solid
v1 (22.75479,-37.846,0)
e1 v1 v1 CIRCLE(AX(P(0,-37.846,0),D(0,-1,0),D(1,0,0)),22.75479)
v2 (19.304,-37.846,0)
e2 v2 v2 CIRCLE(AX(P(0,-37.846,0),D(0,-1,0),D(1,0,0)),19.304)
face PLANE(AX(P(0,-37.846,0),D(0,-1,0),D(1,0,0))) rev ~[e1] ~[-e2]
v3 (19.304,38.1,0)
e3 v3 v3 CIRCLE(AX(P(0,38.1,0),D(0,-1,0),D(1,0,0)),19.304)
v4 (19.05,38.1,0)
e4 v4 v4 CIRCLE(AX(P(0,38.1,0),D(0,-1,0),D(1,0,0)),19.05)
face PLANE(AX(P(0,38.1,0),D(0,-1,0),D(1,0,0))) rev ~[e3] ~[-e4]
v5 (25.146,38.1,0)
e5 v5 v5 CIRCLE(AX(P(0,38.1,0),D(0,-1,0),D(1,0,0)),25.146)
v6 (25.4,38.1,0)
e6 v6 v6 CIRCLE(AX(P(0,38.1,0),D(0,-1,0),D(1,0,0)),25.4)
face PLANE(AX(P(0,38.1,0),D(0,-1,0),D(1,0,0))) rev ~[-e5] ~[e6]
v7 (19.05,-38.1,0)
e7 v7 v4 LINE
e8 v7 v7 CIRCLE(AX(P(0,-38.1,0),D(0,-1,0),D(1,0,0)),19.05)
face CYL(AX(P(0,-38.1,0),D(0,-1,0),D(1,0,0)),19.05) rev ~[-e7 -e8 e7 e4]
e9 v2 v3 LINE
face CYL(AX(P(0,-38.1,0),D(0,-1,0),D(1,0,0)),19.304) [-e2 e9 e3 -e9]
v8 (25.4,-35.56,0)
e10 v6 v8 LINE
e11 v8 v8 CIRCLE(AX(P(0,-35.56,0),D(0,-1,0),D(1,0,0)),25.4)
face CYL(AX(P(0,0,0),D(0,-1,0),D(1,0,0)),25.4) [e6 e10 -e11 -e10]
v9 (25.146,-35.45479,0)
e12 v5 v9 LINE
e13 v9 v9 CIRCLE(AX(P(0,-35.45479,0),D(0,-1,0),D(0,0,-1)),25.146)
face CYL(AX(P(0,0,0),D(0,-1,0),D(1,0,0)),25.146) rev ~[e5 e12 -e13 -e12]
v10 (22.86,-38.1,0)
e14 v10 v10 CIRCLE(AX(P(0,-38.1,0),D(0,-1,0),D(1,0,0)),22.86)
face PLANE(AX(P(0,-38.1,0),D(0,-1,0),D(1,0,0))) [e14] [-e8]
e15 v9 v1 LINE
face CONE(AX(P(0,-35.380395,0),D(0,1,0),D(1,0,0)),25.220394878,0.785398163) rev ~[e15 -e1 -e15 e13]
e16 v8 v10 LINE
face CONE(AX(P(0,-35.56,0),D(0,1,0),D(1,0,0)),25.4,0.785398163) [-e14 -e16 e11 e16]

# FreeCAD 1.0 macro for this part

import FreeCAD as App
import Part
import Sketcher

V = App.Vector
Q = App.Units.Quantity


def edges_at(feature, points):
    """Names of the edges that pass closest to the given points."""
    edges = feature.Shape.Edges
    near = lambda p: min(range(len(edges)), key=lambda i: edges[i].distToShape(Part.Vertex(*p))[0])
    return sorted({f"Edge{near(p) + 1}" for p in points})


def faces_at(feature, points):
    """Names of the faces that lie closest to the given points."""
    faces = feature.Shape.Faces
    near = lambda p: min(range(len(faces)), key=lambda i: faces[i].distToShape(Part.Vertex(*p))[0])
    return sorted({f"Face{near(p) + 1}" for p in points})

doc = App.newDocument("Part")
body = doc.addObject("PartDesign::Body", "Body")

# Sketch on XZ plane
sketch1 = body.newObject("Sketcher::SketchObject", "Sketch")
sketch1.AttachmentSupport = (doc.getObject("XZ_Plane"), [""])
sketch1.MapMode = "FlatFace"
sketch1.addGeometry(Part.Circle(V(0, 0, 0), V(0, 0, 1), 25), False)
sketch1.addConstraint([
    Sketcher.Constraint("Coincident", 0, 3, -1, 1),
    Sketcher.Constraint("Diameter", 0, Q("2 in")),
])
pad1 = body.newObject("PartDesign::Pad", "Pad")
pad1.Profile = sketch1
pad1.Length = Q("3 in")
pad1.Midplane = True

# Sketch on XZ plane
sketch2 = body.newObject("Sketcher::SketchObject", "Sketch001")
sketch2.AttachmentSupport = (doc.getObject("XZ_Plane"), [""])
sketch2.MapMode = "FlatFace"
sketch2.AttachmentOffset = App.Placement(V(0, 0, 1.5 * 25.4), App.Rotation())
sketch2.addGeometry(Part.Circle(V(0, 0, 0), V(0, 0, 1), 19), False)
sketch2.addConstraint([
    Sketcher.Constraint("Coincident", 0, 3, -1, 1),
    Sketcher.Constraint("Diameter", 0, Q("1.5 in")),
])
pocket1 = body.newObject("PartDesign::Pocket", "Pocket")
pocket1.Profile = sketch2
pocket1.Type = "ThroughAll"
doc.recompute()

chamfer = body.newObject("PartDesign::Chamfer", "Chamfer")
chamfer.Base = (pocket1, edges_at(pocket1, [(-25.4, -38.1, 0)]))
chamfer.Size = Q("0.1 in")
doc.recompute()

thickness = body.newObject("PartDesign::Thickness", "Thickness")
thickness.Base = (chamfer, faces_at(chamfer, [(-20.32, 38.1, 0)]))
thickness.Value = Q("0.01 in")
thickness.Reversed = True
thickness.Join = "Arc"

doc.recompute()
